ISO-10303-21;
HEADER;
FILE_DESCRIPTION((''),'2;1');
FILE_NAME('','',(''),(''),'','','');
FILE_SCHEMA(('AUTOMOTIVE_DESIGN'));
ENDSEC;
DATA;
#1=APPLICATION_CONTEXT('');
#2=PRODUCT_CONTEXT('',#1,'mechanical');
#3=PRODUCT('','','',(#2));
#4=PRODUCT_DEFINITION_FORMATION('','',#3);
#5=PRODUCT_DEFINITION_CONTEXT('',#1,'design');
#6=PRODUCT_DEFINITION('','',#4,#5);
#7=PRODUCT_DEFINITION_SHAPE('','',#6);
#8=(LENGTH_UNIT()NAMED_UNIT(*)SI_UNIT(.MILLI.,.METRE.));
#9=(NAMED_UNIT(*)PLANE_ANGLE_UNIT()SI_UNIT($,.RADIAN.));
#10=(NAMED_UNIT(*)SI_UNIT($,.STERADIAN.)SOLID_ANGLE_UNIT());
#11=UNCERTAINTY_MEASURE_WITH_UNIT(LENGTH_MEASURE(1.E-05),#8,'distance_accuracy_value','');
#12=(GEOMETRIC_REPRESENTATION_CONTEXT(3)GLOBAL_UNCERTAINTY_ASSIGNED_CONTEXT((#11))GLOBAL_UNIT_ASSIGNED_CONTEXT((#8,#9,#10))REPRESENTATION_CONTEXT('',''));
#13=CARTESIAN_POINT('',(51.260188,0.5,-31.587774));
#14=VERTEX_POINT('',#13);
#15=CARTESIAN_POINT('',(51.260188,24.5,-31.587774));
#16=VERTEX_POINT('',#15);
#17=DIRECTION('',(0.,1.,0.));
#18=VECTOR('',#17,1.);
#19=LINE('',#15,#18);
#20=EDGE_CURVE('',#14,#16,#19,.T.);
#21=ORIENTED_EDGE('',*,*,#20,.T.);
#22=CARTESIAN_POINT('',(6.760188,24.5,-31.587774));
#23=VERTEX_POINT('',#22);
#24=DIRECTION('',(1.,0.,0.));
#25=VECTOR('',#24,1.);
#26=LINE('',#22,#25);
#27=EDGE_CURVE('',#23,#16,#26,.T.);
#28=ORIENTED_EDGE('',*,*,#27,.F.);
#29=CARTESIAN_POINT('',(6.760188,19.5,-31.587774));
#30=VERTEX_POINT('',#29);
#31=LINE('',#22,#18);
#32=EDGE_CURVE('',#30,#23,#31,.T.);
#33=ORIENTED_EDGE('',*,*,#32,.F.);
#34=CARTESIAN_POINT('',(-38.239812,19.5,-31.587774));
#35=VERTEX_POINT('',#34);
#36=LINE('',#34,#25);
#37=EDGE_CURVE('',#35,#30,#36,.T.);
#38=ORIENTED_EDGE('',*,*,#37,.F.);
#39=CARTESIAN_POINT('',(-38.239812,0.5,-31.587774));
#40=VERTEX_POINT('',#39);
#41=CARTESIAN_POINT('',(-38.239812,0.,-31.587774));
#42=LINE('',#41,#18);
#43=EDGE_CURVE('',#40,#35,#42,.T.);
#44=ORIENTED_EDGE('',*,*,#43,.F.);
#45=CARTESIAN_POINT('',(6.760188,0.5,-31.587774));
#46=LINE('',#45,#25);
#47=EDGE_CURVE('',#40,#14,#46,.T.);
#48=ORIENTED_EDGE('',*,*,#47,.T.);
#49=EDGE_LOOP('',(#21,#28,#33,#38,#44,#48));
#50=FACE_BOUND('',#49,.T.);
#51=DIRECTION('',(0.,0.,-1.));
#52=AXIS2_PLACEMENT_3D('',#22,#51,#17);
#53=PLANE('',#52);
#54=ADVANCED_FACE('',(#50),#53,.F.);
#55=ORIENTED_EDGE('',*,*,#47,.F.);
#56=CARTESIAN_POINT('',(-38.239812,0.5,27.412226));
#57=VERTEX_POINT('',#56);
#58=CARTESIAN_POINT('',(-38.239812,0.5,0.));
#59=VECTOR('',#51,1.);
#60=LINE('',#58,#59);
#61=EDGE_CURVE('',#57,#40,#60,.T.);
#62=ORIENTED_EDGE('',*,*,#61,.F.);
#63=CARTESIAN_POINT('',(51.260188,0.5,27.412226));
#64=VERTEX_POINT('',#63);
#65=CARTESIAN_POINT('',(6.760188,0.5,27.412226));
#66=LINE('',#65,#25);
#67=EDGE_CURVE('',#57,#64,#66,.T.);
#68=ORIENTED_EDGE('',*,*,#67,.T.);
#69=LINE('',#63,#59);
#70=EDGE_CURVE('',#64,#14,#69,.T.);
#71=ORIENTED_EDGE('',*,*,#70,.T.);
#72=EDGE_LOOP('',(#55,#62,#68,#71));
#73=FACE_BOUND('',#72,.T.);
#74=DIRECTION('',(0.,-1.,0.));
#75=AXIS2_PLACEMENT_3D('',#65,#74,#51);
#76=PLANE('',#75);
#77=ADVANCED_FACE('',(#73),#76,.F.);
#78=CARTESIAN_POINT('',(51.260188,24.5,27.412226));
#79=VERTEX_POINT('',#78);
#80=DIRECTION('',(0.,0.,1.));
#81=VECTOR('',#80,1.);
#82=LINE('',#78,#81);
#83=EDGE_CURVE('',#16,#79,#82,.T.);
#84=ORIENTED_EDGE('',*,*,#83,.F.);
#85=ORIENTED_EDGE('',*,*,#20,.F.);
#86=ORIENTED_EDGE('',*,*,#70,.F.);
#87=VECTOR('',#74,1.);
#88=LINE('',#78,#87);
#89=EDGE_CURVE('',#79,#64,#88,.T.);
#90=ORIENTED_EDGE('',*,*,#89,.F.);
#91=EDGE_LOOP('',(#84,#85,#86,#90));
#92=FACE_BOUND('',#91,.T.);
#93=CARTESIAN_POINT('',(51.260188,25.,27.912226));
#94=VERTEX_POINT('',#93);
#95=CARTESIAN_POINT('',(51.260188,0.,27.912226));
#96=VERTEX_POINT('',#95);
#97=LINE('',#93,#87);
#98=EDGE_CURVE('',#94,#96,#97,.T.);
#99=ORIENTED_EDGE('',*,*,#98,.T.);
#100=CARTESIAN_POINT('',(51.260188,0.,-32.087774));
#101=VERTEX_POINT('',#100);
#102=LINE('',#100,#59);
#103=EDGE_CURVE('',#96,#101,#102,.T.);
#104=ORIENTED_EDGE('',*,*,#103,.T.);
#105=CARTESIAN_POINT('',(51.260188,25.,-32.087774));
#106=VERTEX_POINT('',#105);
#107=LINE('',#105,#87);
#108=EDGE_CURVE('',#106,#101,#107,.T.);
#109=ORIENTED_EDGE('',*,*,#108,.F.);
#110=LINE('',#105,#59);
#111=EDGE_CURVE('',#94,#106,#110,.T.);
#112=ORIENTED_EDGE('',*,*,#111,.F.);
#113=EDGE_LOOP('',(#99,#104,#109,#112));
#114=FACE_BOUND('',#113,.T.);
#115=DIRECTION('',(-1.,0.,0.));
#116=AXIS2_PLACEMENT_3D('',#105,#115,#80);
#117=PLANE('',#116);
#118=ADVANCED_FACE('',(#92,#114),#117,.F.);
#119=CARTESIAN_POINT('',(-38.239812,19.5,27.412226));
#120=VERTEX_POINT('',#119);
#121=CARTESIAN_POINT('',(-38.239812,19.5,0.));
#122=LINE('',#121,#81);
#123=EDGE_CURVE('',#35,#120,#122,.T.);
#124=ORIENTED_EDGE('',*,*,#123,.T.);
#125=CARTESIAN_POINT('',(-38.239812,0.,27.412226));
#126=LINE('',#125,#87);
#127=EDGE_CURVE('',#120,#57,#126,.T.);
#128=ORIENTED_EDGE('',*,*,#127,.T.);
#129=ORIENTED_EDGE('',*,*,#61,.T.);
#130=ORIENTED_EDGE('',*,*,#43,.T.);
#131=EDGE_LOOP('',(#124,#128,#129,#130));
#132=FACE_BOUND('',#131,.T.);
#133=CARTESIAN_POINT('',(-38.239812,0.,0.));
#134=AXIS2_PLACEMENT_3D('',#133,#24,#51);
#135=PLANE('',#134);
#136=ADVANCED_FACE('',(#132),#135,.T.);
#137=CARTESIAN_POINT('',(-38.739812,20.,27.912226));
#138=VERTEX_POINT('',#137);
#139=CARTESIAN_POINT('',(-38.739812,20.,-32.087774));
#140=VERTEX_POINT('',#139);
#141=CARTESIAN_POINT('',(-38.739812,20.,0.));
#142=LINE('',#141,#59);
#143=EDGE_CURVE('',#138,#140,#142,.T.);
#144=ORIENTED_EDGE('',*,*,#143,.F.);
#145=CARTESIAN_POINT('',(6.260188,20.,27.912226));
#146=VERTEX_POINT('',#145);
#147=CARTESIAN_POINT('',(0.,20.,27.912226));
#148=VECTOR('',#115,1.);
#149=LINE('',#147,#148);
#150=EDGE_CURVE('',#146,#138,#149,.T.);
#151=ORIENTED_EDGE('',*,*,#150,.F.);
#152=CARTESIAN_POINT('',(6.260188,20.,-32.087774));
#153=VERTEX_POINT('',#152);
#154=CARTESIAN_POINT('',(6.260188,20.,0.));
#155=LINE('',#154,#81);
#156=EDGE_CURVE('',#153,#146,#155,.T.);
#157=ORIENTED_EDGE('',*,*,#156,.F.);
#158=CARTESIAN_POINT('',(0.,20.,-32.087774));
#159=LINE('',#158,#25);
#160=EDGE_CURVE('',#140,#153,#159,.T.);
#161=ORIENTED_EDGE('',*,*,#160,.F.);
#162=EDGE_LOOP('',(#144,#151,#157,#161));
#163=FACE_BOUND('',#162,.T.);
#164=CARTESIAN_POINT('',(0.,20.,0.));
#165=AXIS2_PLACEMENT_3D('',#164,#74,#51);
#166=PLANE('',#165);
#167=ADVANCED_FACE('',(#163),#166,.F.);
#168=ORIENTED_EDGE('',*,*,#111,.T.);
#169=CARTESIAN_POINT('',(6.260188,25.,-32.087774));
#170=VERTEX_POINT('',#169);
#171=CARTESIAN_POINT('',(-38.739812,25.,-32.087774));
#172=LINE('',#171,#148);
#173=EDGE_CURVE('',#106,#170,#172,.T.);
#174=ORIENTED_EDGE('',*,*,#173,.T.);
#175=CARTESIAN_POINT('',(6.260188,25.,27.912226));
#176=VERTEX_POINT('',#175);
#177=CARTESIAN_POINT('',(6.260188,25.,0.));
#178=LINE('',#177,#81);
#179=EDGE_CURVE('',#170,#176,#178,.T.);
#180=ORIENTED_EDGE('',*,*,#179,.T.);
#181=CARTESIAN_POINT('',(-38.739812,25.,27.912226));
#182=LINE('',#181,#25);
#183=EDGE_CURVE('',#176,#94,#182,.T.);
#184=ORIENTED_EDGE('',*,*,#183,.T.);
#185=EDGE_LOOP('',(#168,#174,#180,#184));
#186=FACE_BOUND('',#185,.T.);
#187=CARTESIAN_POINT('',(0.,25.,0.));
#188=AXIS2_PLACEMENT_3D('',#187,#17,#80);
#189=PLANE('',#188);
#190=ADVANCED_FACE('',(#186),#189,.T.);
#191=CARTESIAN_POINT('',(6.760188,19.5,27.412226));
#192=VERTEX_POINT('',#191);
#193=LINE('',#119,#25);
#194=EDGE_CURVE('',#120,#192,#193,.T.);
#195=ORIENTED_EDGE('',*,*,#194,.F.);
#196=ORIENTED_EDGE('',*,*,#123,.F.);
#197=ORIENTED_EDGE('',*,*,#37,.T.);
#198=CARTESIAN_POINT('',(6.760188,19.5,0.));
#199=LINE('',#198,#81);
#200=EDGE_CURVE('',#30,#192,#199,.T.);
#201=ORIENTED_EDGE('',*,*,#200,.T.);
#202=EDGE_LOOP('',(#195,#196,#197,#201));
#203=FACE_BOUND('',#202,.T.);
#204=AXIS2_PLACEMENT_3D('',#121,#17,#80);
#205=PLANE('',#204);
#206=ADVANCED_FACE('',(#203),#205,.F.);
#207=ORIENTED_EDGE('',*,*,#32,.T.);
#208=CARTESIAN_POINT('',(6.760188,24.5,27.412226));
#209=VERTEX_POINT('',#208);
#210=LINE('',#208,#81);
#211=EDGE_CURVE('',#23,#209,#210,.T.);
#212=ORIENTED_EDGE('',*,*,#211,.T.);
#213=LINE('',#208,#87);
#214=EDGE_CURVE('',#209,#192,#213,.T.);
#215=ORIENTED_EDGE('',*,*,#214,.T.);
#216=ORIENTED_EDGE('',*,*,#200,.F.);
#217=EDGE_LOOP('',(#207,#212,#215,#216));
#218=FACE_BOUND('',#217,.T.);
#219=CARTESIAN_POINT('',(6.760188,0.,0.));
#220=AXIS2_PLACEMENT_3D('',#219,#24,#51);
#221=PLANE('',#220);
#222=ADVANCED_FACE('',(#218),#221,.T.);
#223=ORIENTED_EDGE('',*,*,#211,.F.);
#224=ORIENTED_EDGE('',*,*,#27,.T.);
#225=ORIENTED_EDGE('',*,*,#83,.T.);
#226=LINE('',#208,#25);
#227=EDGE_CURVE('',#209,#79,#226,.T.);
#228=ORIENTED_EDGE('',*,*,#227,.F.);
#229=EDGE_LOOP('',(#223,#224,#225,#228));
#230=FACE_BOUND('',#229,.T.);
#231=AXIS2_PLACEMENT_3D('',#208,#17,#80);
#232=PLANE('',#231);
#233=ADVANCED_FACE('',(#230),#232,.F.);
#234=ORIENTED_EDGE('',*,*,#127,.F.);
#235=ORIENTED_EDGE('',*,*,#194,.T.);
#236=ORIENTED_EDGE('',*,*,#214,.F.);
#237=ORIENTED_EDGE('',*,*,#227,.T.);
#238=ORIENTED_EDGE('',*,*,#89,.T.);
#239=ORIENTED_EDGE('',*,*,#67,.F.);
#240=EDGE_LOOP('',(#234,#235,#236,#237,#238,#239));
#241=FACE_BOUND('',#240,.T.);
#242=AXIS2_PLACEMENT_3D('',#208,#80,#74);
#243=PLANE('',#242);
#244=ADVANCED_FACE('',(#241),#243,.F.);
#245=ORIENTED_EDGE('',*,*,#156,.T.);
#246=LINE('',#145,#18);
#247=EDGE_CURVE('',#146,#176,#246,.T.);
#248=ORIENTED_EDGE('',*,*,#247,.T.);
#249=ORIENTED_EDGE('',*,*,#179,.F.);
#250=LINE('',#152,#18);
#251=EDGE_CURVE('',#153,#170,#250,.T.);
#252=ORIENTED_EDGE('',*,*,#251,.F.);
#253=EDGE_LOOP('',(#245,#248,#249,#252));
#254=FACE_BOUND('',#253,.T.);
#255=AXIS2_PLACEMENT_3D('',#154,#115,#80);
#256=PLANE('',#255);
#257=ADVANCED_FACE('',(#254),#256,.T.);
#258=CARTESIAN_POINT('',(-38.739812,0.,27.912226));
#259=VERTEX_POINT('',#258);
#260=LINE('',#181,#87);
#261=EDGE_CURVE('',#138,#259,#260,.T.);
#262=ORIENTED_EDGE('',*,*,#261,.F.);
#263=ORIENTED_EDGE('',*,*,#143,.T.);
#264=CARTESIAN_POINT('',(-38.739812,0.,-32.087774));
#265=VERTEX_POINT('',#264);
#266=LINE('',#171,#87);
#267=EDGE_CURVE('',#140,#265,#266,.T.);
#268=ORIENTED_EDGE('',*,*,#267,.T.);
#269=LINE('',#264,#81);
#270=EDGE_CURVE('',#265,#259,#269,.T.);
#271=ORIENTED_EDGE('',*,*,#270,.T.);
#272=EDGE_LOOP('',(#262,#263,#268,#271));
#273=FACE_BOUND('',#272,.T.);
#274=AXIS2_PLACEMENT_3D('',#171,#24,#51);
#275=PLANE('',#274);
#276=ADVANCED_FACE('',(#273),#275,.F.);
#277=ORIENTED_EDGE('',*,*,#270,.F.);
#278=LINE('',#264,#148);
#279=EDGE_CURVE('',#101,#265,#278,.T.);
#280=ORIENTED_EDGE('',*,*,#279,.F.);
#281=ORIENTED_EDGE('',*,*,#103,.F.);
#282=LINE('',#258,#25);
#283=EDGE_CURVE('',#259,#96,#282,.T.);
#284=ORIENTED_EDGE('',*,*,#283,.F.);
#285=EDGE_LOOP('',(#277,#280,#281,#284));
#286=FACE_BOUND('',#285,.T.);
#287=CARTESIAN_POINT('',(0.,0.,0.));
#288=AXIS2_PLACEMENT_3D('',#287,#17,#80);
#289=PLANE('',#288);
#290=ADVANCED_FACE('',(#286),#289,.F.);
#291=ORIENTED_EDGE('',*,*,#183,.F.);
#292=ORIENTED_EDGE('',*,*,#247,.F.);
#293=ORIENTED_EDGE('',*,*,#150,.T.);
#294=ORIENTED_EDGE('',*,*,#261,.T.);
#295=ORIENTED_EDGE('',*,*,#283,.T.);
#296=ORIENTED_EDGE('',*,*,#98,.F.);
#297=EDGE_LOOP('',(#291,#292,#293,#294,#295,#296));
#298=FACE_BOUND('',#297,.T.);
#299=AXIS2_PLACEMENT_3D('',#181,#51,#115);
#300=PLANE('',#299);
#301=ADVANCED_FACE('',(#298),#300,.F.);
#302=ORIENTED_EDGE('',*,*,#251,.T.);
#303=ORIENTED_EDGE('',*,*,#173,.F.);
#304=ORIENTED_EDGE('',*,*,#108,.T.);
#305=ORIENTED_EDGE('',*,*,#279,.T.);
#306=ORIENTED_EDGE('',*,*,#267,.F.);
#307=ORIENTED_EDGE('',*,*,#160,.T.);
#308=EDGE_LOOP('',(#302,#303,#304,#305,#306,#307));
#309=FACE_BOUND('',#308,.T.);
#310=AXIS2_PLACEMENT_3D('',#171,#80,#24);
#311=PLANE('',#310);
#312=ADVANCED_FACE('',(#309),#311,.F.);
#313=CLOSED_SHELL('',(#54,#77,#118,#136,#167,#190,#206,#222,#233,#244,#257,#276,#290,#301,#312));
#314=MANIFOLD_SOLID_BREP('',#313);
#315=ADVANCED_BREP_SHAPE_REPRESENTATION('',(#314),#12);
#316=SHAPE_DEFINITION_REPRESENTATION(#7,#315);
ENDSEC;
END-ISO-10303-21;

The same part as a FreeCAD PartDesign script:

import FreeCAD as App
import Part
import Sketcher
from FreeCAD import Vector

doc = App.newDocument("Part")
body = doc.addObject("PartDesign::Body", "Body")

# Sketch on XZ plane
sketch1 = doc.addObject("Sketcher::SketchObject", "Sketch")
body.addObject(sketch1)
sketch1.AttachmentSupport = (doc.XZ_Plane, [""])
sketch1.MapMode = "FlatFace"
sketch1.addGeometry(Part.LineSegment(Vector(-38.739812, -32.087774, 0), Vector(-38.739812, 27.912226, 0)), False)
sketch1.addGeometry(Part.LineSegment(Vector(-38.739812, 27.912226, 0), Vector(51.260188, 27.912226, 0)), False)
sketch1.addGeometry(Part.LineSegment(Vector(51.260188, 27.912226, 0), Vector(51.260188, -32.087774, 0)), False)
sketch1.addGeometry(Part.LineSegment(Vector(51.260188, -32.087774, 0), Vector(-38.739812, -32.087774, 0)), False)
sketch1.addConstraint(Sketcher.Constraint("Coincident", 0, 2, 1, 1))
sketch1.addConstraint(Sketcher.Constraint("Coincident", 1, 2, 2, 1))
sketch1.addConstraint(Sketcher.Constraint("Coincident", 2, 2, 3, 1))
sketch1.addConstraint(Sketcher.Constraint("Coincident", 3, 2, 0, 1))
sketch1.addConstraint(Sketcher.Constraint("Vertical", 0))
sketch1.addConstraint(Sketcher.Constraint("Horizontal", 1))
sketch1.addConstraint(Sketcher.Constraint("Vertical", 2))
sketch1.addConstraint(Sketcher.Constraint("Horizontal", 3))
sketch1.addConstraint(Sketcher.Constraint("DistanceX", 1, 1, 1, 2, 90.0))
sketch1.addConstraint(Sketcher.Constraint("DistanceY", 0, 1, 0, 2, 60.0))
sketch1.addConstraint(Sketcher.Constraint("DistanceX", 0, 2, -1, 1, 38.739812))
sketch1.addConstraint(Sketcher.Constraint("DistanceY", -1, 1, 0, 2, 27.912226))
pad1 = doc.addObject("PartDesign::Pad", "Pad")
body.addObject(pad1)
pad1.Profile = sketch1
pad1.Length = 25
pad1.Reversed = True

# Sketch on XZ plane
sketch2 = doc.addObject("Sketcher::SketchObject", "Sketch001")
body.addObject(sketch2)
sketch2.AttachmentSupport = (doc.XZ_Plane, [""])
sketch2.MapMode = "FlatFace"
sketch2.AttachmentOffset = App.Placement(Vector(0, 0, -25), App.Rotation())
sketch2.addGeometry(Part.LineSegment(Vector(-38.739812, -32.087774, 0), Vector(-38.739812, 27.912226, 0)), False)
sketch2.addGeometry(Part.LineSegment(Vector(-38.739812, 27.912226, 0), Vector(6.260188, 27.912226, 0)), False)
sketch2.addGeometry(Part.LineSegment(Vector(6.260188, 27.912226, 0), Vector(6.260188, -32.087774, 0)), False)
sketch2.addGeometry(Part.LineSegment(Vector(6.260188, -32.087774, 0), Vector(-38.739812, -32.087774, 0)), False)
sketch2.addConstraint(Sketcher.Constraint("Coincident", 0, 2, 1, 1))
sketch2.addConstraint(Sketcher.Constraint("Coincident", 1, 2, 2, 1))
sketch2.addConstraint(Sketcher.Constraint("Coincident", 2, 2, 3, 1))
sketch2.addConstraint(Sketcher.Constraint("Coincident", 3, 2, 0, 1))
sketch2.addConstraint(Sketcher.Constraint("Vertical", 0))
sketch2.addConstraint(Sketcher.Constraint("Horizontal", 1))
sketch2.addConstraint(Sketcher.Constraint("Vertical", 2))
sketch2.addConstraint(Sketcher.Constraint("Horizontal", 3))
sketch2.addConstraint(Sketcher.Constraint("DistanceX", 1, 1, 1, 2, 45.0))
sketch2.addConstraint(Sketcher.Constraint("DistanceY", 0, 1, 0, 2, 60.0))
sketch2.addConstraint(Sketcher.Constraint("DistanceX", 0, 2, -1, 1, 38.739812))
sketch2.addConstraint(Sketcher.Constraint("DistanceY", -1, 1, 0, 2, 27.912226))
pocket1 = doc.addObject("PartDesign::Pocket", "Pocket")
body.addObject(pocket1)
pocket1.Profile = sketch2
pocket1.Length = 5
pocket1.Reversed = True

# Sketch on YZ plane
sketch3 = doc.addObject("Sketcher::SketchObject", "Sketch002")
body.addObject(sketch3)
sketch3.AttachmentSupport = (doc.YZ_Plane, [""])
sketch3.MapMode = "FlatFace"
sketch3.AttachmentOffset = App.Placement(Vector(0, 0, 51.260188), App.Rotation())
sketch3.addGeometry(Part.LineSegment(Vector(24.5, 27.412226, 0), Vector(0.5, 27.412226, 0)), False)
sketch3.addGeometry(Part.LineSegment(Vector(0.5, 27.412226, 0), Vector(0.5, -31.587774, 0)), False)
sketch3.addGeometry(Part.LineSegment(Vector(0.5, -31.587774, 0), Vector(24.5, -31.587774, 0)), False)
sketch3.addGeometry(Part.LineSegment(Vector(24.5, -31.587774, 0), Vector(24.5, 27.412226, 0)), False)
sketch3.addConstraint(Sketcher.Constraint("Coincident", 0, 2, 1, 1))
sketch3.addConstraint(Sketcher.Constraint("Coincident", 1, 2, 2, 1))
sketch3.addConstraint(Sketcher.Constraint("Coincident", 2, 2, 3, 1))
sketch3.addConstraint(Sketcher.Constraint("Coincident", 3, 2, 0, 1))
sketch3.addConstraint(Sketcher.Constraint("Horizontal", 0))
sketch3.addConstraint(Sketcher.Constraint("Vertical", 1))
sketch3.addConstraint(Sketcher.Constraint("Horizontal", 2))
sketch3.addConstraint(Sketcher.Constraint("Vertical", 3))
sketch3.addConstraint(Sketcher.Constraint("DistanceX", 0, 2, 0, 1, 24.0))
sketch3.addConstraint(Sketcher.Constraint("DistanceY", 1, 2, 1, 1, 59.0))
sketch3.addConstraint(Sketcher.Constraint("DistanceX", -1, 1, 0, 2, 0.5))
sketch3.addConstraint(Sketcher.Constraint("DistanceY", -1, 1, 0, 2, 27.412226))
pocket2 = doc.addObject("PartDesign::Pocket", "Pocket001")
body.addObject(pocket2)
pocket2.Profile = sketch3
pocket2.Length = 44.5

# Sketch on YZ plane
sketch4 = doc.addObject("Sketcher::SketchObject", "Sketch003")
body.addObject(sketch4)
sketch4.AttachmentSupport = (doc.YZ_Plane, [""])
sketch4.MapMode = "FlatFace"
sketch4.AttachmentOffset = App.Placement(Vector(0, 0, 6.760188), App.Rotation())
sketch4.addGeometry(Part.LineSegment(Vector(19.5, -31.587774, 0), Vector(0.5, -31.587774, 0)), False)
sketch4.addGeometry(Part.LineSegment(Vector(0.5, -31.587774, 0), Vector(0.5, 27.412226, 0)), False)
sketch4.addGeometry(Part.LineSegment(Vector(0.5, 27.412226, 0), Vector(19.5, 27.412226, 0)), False)
sketch4.addGeometry(Part.LineSegment(Vector(19.5, 27.412226, 0), Vector(19.5, -31.587774, 0)), False)
sketch4.addConstraint(Sketcher.Constraint("Coincident", 0, 2, 1, 1))
sketch4.addConstraint(Sketcher.Constraint("Coincident", 1, 2, 2, 1))
sketch4.addConstraint(Sketcher.Constraint("Coincident", 2, 2, 3, 1))
sketch4.addConstraint(Sketcher.Constraint("Coincident", 3, 2, 0, 1))
sketch4.addConstraint(Sketcher.Constraint("Horizontal", 0))
sketch4.addConstraint(Sketcher.Constraint("Vertical", 1))
sketch4.addConstraint(Sketcher.Constraint("Horizontal", 2))
sketch4.addConstraint(Sketcher.Constraint("Vertical", 3))
sketch4.addConstraint(Sketcher.Constraint("DistanceX", 0, 2, 0, 1, 19.0))
sketch4.addConstraint(Sketcher.Constraint("DistanceY", 1, 1, 1, 2, 59.0))
sketch4.addConstraint(Sketcher.Constraint("DistanceX", -1, 1, 0, 2, 0.5))
sketch4.addConstraint(Sketcher.Constraint("DistanceY", 0, 2, -1, 1, 31.587774))
pocket3 = doc.addObject("PartDesign::Pocket", "Pocket002")
body.addObject(pocket3)
pocket3.Profile = sketch4
pocket3.Length = 45

doc.recompute()
